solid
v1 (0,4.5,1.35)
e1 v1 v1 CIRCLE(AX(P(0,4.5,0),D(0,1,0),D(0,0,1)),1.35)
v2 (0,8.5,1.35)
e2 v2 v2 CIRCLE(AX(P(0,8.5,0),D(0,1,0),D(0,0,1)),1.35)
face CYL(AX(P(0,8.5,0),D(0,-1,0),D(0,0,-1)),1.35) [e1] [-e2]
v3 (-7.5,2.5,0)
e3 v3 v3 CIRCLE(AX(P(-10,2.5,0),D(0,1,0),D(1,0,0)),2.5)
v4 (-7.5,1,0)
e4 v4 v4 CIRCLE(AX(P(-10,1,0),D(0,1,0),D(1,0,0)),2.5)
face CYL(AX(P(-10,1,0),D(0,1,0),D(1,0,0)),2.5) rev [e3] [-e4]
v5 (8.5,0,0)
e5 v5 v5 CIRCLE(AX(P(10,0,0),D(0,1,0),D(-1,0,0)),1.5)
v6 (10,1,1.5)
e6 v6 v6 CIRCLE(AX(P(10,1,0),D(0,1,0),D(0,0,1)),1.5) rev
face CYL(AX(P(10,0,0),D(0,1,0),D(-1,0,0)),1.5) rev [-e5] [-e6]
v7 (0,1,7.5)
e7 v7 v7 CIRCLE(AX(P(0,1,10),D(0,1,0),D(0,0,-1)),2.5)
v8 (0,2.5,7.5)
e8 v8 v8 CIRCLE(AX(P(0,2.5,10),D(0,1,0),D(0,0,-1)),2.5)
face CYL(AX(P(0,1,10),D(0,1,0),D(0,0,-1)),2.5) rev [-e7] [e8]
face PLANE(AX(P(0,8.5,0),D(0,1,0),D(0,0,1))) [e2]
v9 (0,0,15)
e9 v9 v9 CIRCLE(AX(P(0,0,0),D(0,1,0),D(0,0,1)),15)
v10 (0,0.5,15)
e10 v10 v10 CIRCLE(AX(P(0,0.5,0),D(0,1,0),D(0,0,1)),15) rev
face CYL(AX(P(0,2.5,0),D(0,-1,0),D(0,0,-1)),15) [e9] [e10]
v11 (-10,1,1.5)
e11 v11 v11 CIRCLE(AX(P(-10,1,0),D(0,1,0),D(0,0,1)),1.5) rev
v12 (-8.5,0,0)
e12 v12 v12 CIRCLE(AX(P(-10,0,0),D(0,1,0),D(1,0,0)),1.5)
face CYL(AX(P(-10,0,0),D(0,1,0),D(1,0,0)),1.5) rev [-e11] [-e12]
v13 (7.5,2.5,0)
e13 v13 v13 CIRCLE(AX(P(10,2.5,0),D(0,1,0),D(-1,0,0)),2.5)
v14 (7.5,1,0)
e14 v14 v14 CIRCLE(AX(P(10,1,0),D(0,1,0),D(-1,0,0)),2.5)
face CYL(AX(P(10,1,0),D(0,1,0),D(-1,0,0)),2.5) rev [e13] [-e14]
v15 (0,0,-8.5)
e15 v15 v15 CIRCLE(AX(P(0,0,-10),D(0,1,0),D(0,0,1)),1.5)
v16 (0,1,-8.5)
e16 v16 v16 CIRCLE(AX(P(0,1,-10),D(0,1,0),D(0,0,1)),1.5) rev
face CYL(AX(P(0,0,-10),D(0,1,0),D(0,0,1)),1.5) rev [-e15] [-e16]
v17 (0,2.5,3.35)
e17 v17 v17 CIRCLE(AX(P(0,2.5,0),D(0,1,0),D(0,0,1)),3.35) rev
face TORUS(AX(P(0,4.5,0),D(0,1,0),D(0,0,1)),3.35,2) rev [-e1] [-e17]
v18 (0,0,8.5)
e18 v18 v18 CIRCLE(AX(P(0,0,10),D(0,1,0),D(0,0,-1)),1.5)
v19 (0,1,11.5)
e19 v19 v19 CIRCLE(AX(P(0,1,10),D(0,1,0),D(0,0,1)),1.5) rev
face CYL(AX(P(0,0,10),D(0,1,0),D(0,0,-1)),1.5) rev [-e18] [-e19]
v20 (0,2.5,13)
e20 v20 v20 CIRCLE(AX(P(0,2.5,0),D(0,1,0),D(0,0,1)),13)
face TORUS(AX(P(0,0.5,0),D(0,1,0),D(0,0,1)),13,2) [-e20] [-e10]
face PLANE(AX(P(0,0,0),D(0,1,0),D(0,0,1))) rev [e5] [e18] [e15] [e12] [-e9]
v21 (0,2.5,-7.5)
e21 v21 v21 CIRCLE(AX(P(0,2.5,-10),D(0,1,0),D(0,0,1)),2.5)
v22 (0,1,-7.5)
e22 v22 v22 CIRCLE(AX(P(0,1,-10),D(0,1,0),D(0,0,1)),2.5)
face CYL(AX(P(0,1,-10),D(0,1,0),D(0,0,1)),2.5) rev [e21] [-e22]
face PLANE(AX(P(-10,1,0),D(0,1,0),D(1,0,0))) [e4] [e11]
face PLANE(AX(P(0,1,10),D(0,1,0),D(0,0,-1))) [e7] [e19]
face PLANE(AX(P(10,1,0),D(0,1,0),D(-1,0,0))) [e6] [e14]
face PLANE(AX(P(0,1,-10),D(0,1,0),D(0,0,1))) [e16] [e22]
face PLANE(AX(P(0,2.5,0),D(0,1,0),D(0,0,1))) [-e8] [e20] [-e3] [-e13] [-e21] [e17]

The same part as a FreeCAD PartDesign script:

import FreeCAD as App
import Part
import Sketcher

V = App.Vector


def edges_at(feature, points):
    """Names of the edges that pass closest to the given points."""
    edges = feature.Shape.Edges
    near = lambda p: min(range(len(edges)), key=lambda i: edges[i].distToShape(Part.Vertex(*p))[0])
    return sorted({f"Edge{near(p) + 1}" for p in points})

doc = App.newDocument("Part")
body = doc.addObject("PartDesign::Body", "Body")

sketch1 = body.newObject("Sketcher::SketchObject", "Sketch")
sketch1.AttachmentSupport = (doc.getObject("XZ_Plane"), [""])
sketch1.MapMode = "FlatFace"
sketch1.addGeometry(Part.Circle(V(0, 0, 0), V(0, 0, 1), 15), False)
sketch1.addConstraint([
    Sketcher.Constraint("Coincident", 0, 3, -1, 1),
    Sketcher.Constraint("Diameter", 0, 30.0),
])
pad1 = body.newObject("PartDesign::Pad", "Pad")
pad1.Profile = sketch1
pad1.Length = 2.5
pad1.Reversed = True

sketch2 = body.newObject("Sketcher::SketchObject", "Sketch001")
sketch2.AttachmentSupport = (doc.getObject("XZ_Plane"), [""])
sketch2.MapMode = "FlatFace"
sketch2.AttachmentOffset = App.Placement(V(0, 0, -2.5), App.Rotation())
sketch2.addGeometry(Part.Circle(V(0, -10, 0), V(0, 0, 1), 1.5), False)
sketch2.addConstraint([
    Sketcher.Constraint("PointOnObject", 0, 3, -2),
    Sketcher.Constraint("Diameter", 0, 3.0),
    Sketcher.Constraint("DistanceY", 0, 3, -1, 1, 10.0),
])
pocket1 = body.newObject("PartDesign::Pocket", "Pocket")
pocket1.Profile = sketch2
pocket1.Type = "ThroughAll"
pocket1.Reversed = True

sketch3 = body.newObject("Sketcher::SketchObject", "Sketch002")
sketch3.AttachmentSupport = (doc.getObject("XZ_Plane"), [""])
sketch3.MapMode = "FlatFace"
sketch3.AttachmentOffset = App.Placement(V(0, 0, -2.5), App.Rotation())
sketch3.addGeometry(Part.Circle(V(0, -10, 0), V(0, 0, 1), 2.5), False)
sketch3.addConstraint([
    Sketcher.Constraint("PointOnObject", 0, 3, -2),
    Sketcher.Constraint("Diameter", 0, 5.0),
    Sketcher.Constraint("DistanceY", 0, 3, -1, 1, 10.0),
])
pocket2 = body.newObject("PartDesign::Pocket", "Pocket001")
pocket2.Profile = sketch3
pocket2.Length = 1.5
pocket2.Reversed = True
doc.recompute()

polarpattern = body.newObject("PartDesign::PolarPattern", "PolarPattern")
polarpattern.Originals = [pocket1, pocket2]
polarpattern.Axis = (doc.getObject("Y_Axis"), [""])
polarpattern.Angle = 360
polarpattern.Occurrences = 4
body.Tip = polarpattern

sketch4 = body.newObject("Sketcher::SketchObject", "Sketch003")
sketch4.AttachmentSupport = (doc.getObject("XZ_Plane"), [""])
sketch4.MapMode = "FlatFace"
sketch4.AttachmentOffset = App.Placement(V(0, 0, -2.5), App.Rotation())
sketch4.addGeometry(Part.Circle(V(0, 0, 0), V(0, 0, 1), 1.4), False)
sketch4.addConstraint([
    Sketcher.Constraint("Coincident", 0, 3, -1, 1),
    Sketcher.Constraint("Diameter", 0, 2.7),
])
pad2 = body.newObject("PartDesign::Pad", "Pad001")
pad2.Profile = sketch4
pad2.Length = 6
pad2.Reversed = True
doc.recompute()

fillet = body.newObject("PartDesign::Fillet", "Fillet")
fillet.Base = (pad2, edges_at(pad2, [(-1.35, 2.5, 0)]))
fillet.Radius = 2
doc.recompute()

fillet2 = body.newObject("PartDesign::Fillet", "Fillet001")
fillet2.Base = (fillet, edges_at(fillet, [(-15, 2.5, 0)]))
fillet2.Radius = 2

doc.recompute()
